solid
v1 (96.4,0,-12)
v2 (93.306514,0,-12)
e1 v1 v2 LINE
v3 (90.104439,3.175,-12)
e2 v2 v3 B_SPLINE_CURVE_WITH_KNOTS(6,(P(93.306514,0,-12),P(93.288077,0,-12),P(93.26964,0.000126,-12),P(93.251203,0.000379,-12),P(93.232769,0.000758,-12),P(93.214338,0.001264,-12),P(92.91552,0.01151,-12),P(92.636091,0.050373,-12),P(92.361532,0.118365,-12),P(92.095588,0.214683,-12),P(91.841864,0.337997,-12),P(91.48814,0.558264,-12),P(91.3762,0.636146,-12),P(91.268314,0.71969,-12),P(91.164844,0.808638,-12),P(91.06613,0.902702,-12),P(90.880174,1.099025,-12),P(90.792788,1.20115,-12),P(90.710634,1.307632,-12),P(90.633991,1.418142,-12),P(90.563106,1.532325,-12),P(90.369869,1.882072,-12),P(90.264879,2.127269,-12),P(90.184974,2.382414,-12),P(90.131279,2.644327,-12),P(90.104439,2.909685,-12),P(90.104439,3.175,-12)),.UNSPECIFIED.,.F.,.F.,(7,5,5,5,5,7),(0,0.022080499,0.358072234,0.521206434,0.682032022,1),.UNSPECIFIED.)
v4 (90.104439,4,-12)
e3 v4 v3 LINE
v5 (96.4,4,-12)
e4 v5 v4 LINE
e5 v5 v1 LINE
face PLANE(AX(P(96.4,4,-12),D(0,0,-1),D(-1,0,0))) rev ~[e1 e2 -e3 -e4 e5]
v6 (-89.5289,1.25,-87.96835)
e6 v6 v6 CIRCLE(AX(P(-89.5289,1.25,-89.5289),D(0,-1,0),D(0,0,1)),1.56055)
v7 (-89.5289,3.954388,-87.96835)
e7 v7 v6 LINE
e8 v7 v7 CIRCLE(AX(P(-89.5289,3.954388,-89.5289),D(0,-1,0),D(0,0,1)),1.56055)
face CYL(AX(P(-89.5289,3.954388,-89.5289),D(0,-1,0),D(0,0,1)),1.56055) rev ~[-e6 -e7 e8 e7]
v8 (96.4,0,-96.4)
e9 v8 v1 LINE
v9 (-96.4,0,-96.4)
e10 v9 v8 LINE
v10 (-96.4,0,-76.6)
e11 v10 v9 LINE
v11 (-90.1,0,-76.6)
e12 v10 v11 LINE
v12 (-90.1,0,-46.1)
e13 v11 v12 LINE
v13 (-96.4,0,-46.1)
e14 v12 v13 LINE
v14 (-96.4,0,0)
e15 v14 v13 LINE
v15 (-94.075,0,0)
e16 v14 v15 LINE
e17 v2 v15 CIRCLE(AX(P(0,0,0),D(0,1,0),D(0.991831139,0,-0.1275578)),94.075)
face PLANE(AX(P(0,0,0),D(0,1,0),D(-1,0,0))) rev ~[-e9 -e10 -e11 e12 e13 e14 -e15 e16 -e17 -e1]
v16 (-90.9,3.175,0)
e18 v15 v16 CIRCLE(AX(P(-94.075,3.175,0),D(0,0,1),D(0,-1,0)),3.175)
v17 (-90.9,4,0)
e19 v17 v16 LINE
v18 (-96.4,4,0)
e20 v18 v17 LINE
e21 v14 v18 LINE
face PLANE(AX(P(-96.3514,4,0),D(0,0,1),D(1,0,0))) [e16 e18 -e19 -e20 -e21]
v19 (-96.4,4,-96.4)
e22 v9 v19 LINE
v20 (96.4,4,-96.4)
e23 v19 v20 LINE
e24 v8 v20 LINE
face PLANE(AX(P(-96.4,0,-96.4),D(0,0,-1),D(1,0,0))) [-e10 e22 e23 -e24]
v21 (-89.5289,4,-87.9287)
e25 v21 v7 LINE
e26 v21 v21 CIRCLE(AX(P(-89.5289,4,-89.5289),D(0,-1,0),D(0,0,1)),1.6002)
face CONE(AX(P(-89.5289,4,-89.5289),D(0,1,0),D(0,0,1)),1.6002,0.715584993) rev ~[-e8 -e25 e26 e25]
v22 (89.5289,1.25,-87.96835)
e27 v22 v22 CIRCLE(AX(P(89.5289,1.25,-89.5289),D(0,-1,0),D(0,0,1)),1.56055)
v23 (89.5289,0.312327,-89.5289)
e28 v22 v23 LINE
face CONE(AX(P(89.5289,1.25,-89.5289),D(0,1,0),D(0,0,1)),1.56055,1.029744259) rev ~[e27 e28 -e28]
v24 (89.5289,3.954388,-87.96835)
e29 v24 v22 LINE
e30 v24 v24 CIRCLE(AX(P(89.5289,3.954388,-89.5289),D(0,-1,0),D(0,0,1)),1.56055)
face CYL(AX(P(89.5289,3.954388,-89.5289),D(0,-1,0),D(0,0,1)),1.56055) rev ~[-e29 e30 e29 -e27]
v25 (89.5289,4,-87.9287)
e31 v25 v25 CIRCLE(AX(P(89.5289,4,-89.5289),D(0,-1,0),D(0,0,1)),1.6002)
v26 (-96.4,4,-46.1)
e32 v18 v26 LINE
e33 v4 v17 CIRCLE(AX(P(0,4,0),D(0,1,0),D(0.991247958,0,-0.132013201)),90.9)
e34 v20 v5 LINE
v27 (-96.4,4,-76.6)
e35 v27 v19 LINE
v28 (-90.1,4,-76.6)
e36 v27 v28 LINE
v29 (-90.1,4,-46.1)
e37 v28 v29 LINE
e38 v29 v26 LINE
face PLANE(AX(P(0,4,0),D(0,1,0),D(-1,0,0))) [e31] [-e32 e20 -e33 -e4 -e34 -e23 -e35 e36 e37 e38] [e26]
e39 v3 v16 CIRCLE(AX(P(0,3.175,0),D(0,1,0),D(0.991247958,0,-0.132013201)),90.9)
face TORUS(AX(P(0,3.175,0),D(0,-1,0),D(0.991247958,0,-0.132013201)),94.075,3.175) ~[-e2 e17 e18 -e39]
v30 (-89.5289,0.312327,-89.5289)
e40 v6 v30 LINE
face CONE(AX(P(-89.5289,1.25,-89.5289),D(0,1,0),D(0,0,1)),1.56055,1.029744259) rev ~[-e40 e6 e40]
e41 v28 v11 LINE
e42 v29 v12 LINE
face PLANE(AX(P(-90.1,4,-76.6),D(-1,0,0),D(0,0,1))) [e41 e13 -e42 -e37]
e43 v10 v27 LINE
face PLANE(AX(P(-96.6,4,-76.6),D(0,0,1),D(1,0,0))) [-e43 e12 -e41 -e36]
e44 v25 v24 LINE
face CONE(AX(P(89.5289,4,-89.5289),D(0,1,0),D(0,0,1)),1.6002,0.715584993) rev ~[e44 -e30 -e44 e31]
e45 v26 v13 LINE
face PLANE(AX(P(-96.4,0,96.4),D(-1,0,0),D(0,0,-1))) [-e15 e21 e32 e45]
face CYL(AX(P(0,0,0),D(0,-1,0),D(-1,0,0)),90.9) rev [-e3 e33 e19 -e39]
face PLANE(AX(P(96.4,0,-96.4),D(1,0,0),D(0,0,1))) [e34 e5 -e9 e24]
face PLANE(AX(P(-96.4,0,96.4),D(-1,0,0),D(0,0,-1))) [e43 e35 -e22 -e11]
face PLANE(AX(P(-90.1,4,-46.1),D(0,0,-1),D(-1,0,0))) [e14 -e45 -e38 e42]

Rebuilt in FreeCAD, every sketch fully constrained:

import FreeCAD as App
import Part
import Sketcher
from FreeCAD import Vector
Q = App.Units.Quantity


def edges_at(feature, points):
    """Names of the edges that pass closest to the given points."""
    edges = feature.Shape.Edges
    near = lambda p: min(range(len(edges)), key=lambda i: edges[i].distToShape(Part.Vertex(*p))[0])
    return sorted({f"Edge{near(p) + 1}" for p in points})


def add_polygon(sketch, points):
    """Adds a closed chain of lines whose ends are joined by coincident constraints."""
    first, n = sketch.GeometryCount, len(points)
    for a, b in zip(points, points[1:] + points[:1]):
        sketch.addGeometry(Part.LineSegment(App.Vector(*a, 0), App.Vector(*b, 0)), False)
    for i in range(n):
        sketch.addConstraint(Sketcher.Constraint("Coincident", first + i, 2, first + (i + 1) % n, 1))

doc = App.newDocument("Part")
body = doc.addObject("PartDesign::Body", "Body")

# Sketch on XZ plane
sketch1 = body.newObject("Sketcher::SketchObject", "Sketch")
sketch1.AttachmentSupport = (doc.getObject("XZ_Plane"), [""])
sketch1.MapMode = "FlatFace"
add_polygon(sketch1, [(45, 96), (96, 45), (96, -96), (-96, -96), (-96, 96)])  # lines 0-4
sketch1.addGeometry(Part.Circle(Vector(0, 0, 0), Vector(0, 0, 1), 91), False)  # 5
sketch1.addConstraint(Sketcher.Constraint("Vertical", 1))
sketch1.addConstraint(Sketcher.Constraint("Horizontal", 2))
sketch1.addConstraint(Sketcher.Constraint("Vertical", 3))
sketch1.addConstraint(Sketcher.Constraint("Horizontal", 4))
sketch1.addConstraint(Sketcher.Constraint("Coincident", 5, 3, -1, 1))
sketch1.addConstraint(Sketcher.Constraint("Symmetric", 1, 2, 3, 2, -1, 1))
sketch1.addConstraint(Sketcher.Constraint("Equal", 4, 1))
sketch1.addConstraint(Sketcher.Constraint("Equal", 2, 3))
sketch1.addConstraint(Sketcher.Constraint("Diameter", 5, Q("181.8 mm")))
sketch1.addConstraint(Sketcher.Constraint("DistanceX", 4, 1, 4, 2, Q("141 mm")))
sketch1.addConstraint(Sketcher.Constraint("DistanceX", 2, 2, 2, 1, Q("192.8 mm")))
pad1 = body.newObject("PartDesign::Pad", "Pad")
pad1.Profile = sketch1
pad1.Length = 4
pad1.Reversed = True

# Sketch on XZ plane
sketch2 = body.newObject("Sketcher::SketchObject", "Sketch001")
sketch2.AttachmentSupport = (doc.getObject("XZ_Plane"), [""])
sketch2.MapMode = "FlatFace"
sketch2.AttachmentOffset = App.Placement(Vector(0, 0, -4), App.Rotation())
add_polygon(sketch2, [(96, -12), (88, -12), (88, 12), (96, 12)])  # lines 0-3
sketch2.addConstraint(Sketcher.Constraint("Horizontal", 0))
sketch2.addConstraint(Sketcher.Constraint("Vertical", 1))
sketch2.addConstraint(Sketcher.Constraint("Horizontal", 2))
sketch2.addConstraint(Sketcher.Constraint("Vertical", 3))
sketch2.addConstraint(Sketcher.Constraint("DistanceX", 0, 2, 0, 1, Q("8 mm")))
sketch2.addConstraint(Sketcher.Constraint("DistanceY", 0, 2, -1, 1, Q("12 mm")))
sketch2.addConstraint(Sketcher.Constraint("DistanceY", -1, 1, 1, 2, Q("12 mm")))
sketch2.addConstraint(Sketcher.Constraint("DistanceX", -1, 1, 0, 2, Q("88.4 mm")))
pocket1 = body.newObject("PartDesign::Pocket", "Pocket")
pocket1.Profile = sketch2
pocket1.Length = 25.4
pocket1.Reversed = True

# Sketch on XZ plane
sketch3 = body.newObject("Sketcher::SketchObject", "Sketch002")
sketch3.AttachmentSupport = (doc.getObject("XZ_Plane"), [""])
sketch3.MapMode = "FlatFace"
sketch3.AttachmentOffset = App.Placement(Vector(0, 0, -4), App.Rotation())
sketch3.addGeometry(Part.Circle(Vector(-89.5, -89.5, 0), Vector(0, 0, 1), 1.6), False)
sketch3.addGeometry(Part.Circle(Vector(89.5, -89.5, 0), Vector(0, 0, 1), 1.6), False)
sketch3.addGeometry(Part.Circle(Vector(-89.5, 89.5, 0), Vector(0, 0, 1), 1.6), False)
sketch3.addGeometry(Part.Circle(Vector(68.7, 68.7, 0), Vector(0, 0, 1), 1.6), False)
sketch3.addConstraint(Sketcher.Constraint("Equal", 0, 1))
sketch3.addConstraint(Sketcher.Constraint("Equal", 1, 2))
sketch3.addConstraint(Sketcher.Constraint("Equal", 2, 3))
sketch3.addConstraint(Sketcher.Constraint("Symmetric", 1, 3, 2, 3, -1, 1))
sketch3.addConstraint(Sketcher.Constraint("Symmetric", 0, 3, 1, 3, -2))
sketch3.addConstraint(Sketcher.Constraint("Diameter", 0, Q("3.121 mm")))
sketch3.addConstraint(Sketcher.Constraint("DistanceX", 0, 3, -1, 1, Q("89.529 mm")))
sketch3.addConstraint(Sketcher.Constraint("DistanceY", 0, 3, -1, 1, Q("89.529 mm")))
sketch3.addConstraint(Sketcher.Constraint("DistanceY", 1, 3, 3, 3, Q("158.261 mm")))
sketch3.addConstraint(Sketcher.Constraint("DistanceX", 2, 3, 3, 3, Q("158.261 mm")))
doc.recompute()
hole = body.newObject("PartDesign::Hole", "Hole")
hole.Profile = sketch3
hole.ThreadType = "None"
hole.Diameter = 3.1211
hole.DepthType = "Dimension"
hole.Depth = 2.75
hole.DrillPoint = "Angled"
hole.DrillPointAngle = 118
hole.HoleCutType = "Countersink"
hole.HoleCutDiameter = 3.2004
hole.HoleCutCountersinkAngle = 82
hole.Reversed = True
doc.recompute()

fillet = body.newObject("PartDesign::Fillet", "Fillet")
fillet.Base = (hole, edges_at(hole, [(-6.013, 0, -90.701), (-6.013, 0, 90.701)]))
fillet.Radius = 3.175

# Sketch on XZ plane
sketch4 = body.newObject("Sketcher::SketchObject", "Sketch003")
sketch4.AttachmentSupport = (doc.getObject("XZ_Plane"), [""])
sketch4.MapMode = "FlatFace"
sketch4.AttachmentOffset = App.Placement(Vector(0, 0, -4), App.Rotation())
add_polygon(sketch4, [(-90, -77), (-97, -77), (-97, -46), (-90, -46)])  # lines 0-3
add_polygon(sketch4, [(-90, 46), (-97, 46), (-97, 77), (-90, 77)])  # lines 4-7
sketch4.addConstraint(Sketcher.Constraint("Horizontal", 0))
sketch4.addConstraint(Sketcher.Constraint("Vertical", 1))
sketch4.addConstraint(Sketcher.Constraint("Horizontal", 2))
sketch4.addConstraint(Sketcher.Constraint("Vertical", 3))
sketch4.addConstraint(Sketcher.Constraint("Horizontal", 4))
sketch4.addConstraint(Sketcher.Constraint("Vertical", 5))
sketch4.addConstraint(Sketcher.Constraint("Horizontal", 6))
sketch4.addConstraint(Sketcher.Constraint("Vertical", 7))
sketch4.addConstraint(Sketcher.Constraint("Symmetric", 1, 2, 4, 2, -1))
sketch4.addConstraint(Sketcher.Constraint("Symmetric", 3, 2, 6, 2, -1))
sketch4.addConstraint(Sketcher.Constraint("DistanceX", 0, 2, 0, 1, Q("6.5 mm")))
sketch4.addConstraint(Sketcher.Constraint("DistanceY", 1, 1, 1, 2, Q("30.5 mm")))
sketch4.addConstraint(Sketcher.Constraint("DistanceX", 0, 2, -1, 1, Q("96.6 mm")))
sketch4.addConstraint(Sketcher.Constraint("DistanceY", 0, 2, -1, 1, Q("76.6 mm")))
pocket2 = body.newObject("PartDesign::Pocket", "Pocket001")
pocket2.Profile = sketch4
pocket2.Length = 25.4
pocket2.Reversed = True

# Sketch on XY plane
sketch5 = body.newObject("Sketcher::SketchObject", "Sketch004")
sketch5.AttachmentSupport = (doc.getObject("XY_Plane"), [""])
sketch5.MapMode = "FlatFace"
add_polygon(sketch5, [(141, 41), (-147, 41), (-147, -56), (141, -56)])  # lines 0-3
sketch5.addConstraint(Sketcher.Constraint("Horizontal", 0))
sketch5.addConstraint(Sketcher.Constraint("Vertical", 1))
sketch5.addConstraint(Sketcher.Constraint("Horizontal", 2))
sketch5.addConstraint(Sketcher.Constraint("Vertical", 3))
sketch5.addConstraint(Sketcher.Constraint("DistanceY", 1, 2, 1, 1, Q("96.84 mm")))
sketch5.addConstraint(Sketcher.Constraint("DistanceX", -1, 1, 2, 2, Q("141.28 mm")))
sketch5.addConstraint(Sketcher.Constraint("DistanceX", 0, 2, 0, 1, Q("288.7753 mm")))
sketch5.addConstraint(Sketcher.Constraint("DistanceY", -1, 1, 0, 2, Q("41.1405 mm")))
pocket3 = body.newObject("PartDesign::Pocket", "Pocket002")
pocket3.Profile = sketch5
pocket3.Type = "ThroughAll"
pocket3.Reversed = True

doc.recompute()
